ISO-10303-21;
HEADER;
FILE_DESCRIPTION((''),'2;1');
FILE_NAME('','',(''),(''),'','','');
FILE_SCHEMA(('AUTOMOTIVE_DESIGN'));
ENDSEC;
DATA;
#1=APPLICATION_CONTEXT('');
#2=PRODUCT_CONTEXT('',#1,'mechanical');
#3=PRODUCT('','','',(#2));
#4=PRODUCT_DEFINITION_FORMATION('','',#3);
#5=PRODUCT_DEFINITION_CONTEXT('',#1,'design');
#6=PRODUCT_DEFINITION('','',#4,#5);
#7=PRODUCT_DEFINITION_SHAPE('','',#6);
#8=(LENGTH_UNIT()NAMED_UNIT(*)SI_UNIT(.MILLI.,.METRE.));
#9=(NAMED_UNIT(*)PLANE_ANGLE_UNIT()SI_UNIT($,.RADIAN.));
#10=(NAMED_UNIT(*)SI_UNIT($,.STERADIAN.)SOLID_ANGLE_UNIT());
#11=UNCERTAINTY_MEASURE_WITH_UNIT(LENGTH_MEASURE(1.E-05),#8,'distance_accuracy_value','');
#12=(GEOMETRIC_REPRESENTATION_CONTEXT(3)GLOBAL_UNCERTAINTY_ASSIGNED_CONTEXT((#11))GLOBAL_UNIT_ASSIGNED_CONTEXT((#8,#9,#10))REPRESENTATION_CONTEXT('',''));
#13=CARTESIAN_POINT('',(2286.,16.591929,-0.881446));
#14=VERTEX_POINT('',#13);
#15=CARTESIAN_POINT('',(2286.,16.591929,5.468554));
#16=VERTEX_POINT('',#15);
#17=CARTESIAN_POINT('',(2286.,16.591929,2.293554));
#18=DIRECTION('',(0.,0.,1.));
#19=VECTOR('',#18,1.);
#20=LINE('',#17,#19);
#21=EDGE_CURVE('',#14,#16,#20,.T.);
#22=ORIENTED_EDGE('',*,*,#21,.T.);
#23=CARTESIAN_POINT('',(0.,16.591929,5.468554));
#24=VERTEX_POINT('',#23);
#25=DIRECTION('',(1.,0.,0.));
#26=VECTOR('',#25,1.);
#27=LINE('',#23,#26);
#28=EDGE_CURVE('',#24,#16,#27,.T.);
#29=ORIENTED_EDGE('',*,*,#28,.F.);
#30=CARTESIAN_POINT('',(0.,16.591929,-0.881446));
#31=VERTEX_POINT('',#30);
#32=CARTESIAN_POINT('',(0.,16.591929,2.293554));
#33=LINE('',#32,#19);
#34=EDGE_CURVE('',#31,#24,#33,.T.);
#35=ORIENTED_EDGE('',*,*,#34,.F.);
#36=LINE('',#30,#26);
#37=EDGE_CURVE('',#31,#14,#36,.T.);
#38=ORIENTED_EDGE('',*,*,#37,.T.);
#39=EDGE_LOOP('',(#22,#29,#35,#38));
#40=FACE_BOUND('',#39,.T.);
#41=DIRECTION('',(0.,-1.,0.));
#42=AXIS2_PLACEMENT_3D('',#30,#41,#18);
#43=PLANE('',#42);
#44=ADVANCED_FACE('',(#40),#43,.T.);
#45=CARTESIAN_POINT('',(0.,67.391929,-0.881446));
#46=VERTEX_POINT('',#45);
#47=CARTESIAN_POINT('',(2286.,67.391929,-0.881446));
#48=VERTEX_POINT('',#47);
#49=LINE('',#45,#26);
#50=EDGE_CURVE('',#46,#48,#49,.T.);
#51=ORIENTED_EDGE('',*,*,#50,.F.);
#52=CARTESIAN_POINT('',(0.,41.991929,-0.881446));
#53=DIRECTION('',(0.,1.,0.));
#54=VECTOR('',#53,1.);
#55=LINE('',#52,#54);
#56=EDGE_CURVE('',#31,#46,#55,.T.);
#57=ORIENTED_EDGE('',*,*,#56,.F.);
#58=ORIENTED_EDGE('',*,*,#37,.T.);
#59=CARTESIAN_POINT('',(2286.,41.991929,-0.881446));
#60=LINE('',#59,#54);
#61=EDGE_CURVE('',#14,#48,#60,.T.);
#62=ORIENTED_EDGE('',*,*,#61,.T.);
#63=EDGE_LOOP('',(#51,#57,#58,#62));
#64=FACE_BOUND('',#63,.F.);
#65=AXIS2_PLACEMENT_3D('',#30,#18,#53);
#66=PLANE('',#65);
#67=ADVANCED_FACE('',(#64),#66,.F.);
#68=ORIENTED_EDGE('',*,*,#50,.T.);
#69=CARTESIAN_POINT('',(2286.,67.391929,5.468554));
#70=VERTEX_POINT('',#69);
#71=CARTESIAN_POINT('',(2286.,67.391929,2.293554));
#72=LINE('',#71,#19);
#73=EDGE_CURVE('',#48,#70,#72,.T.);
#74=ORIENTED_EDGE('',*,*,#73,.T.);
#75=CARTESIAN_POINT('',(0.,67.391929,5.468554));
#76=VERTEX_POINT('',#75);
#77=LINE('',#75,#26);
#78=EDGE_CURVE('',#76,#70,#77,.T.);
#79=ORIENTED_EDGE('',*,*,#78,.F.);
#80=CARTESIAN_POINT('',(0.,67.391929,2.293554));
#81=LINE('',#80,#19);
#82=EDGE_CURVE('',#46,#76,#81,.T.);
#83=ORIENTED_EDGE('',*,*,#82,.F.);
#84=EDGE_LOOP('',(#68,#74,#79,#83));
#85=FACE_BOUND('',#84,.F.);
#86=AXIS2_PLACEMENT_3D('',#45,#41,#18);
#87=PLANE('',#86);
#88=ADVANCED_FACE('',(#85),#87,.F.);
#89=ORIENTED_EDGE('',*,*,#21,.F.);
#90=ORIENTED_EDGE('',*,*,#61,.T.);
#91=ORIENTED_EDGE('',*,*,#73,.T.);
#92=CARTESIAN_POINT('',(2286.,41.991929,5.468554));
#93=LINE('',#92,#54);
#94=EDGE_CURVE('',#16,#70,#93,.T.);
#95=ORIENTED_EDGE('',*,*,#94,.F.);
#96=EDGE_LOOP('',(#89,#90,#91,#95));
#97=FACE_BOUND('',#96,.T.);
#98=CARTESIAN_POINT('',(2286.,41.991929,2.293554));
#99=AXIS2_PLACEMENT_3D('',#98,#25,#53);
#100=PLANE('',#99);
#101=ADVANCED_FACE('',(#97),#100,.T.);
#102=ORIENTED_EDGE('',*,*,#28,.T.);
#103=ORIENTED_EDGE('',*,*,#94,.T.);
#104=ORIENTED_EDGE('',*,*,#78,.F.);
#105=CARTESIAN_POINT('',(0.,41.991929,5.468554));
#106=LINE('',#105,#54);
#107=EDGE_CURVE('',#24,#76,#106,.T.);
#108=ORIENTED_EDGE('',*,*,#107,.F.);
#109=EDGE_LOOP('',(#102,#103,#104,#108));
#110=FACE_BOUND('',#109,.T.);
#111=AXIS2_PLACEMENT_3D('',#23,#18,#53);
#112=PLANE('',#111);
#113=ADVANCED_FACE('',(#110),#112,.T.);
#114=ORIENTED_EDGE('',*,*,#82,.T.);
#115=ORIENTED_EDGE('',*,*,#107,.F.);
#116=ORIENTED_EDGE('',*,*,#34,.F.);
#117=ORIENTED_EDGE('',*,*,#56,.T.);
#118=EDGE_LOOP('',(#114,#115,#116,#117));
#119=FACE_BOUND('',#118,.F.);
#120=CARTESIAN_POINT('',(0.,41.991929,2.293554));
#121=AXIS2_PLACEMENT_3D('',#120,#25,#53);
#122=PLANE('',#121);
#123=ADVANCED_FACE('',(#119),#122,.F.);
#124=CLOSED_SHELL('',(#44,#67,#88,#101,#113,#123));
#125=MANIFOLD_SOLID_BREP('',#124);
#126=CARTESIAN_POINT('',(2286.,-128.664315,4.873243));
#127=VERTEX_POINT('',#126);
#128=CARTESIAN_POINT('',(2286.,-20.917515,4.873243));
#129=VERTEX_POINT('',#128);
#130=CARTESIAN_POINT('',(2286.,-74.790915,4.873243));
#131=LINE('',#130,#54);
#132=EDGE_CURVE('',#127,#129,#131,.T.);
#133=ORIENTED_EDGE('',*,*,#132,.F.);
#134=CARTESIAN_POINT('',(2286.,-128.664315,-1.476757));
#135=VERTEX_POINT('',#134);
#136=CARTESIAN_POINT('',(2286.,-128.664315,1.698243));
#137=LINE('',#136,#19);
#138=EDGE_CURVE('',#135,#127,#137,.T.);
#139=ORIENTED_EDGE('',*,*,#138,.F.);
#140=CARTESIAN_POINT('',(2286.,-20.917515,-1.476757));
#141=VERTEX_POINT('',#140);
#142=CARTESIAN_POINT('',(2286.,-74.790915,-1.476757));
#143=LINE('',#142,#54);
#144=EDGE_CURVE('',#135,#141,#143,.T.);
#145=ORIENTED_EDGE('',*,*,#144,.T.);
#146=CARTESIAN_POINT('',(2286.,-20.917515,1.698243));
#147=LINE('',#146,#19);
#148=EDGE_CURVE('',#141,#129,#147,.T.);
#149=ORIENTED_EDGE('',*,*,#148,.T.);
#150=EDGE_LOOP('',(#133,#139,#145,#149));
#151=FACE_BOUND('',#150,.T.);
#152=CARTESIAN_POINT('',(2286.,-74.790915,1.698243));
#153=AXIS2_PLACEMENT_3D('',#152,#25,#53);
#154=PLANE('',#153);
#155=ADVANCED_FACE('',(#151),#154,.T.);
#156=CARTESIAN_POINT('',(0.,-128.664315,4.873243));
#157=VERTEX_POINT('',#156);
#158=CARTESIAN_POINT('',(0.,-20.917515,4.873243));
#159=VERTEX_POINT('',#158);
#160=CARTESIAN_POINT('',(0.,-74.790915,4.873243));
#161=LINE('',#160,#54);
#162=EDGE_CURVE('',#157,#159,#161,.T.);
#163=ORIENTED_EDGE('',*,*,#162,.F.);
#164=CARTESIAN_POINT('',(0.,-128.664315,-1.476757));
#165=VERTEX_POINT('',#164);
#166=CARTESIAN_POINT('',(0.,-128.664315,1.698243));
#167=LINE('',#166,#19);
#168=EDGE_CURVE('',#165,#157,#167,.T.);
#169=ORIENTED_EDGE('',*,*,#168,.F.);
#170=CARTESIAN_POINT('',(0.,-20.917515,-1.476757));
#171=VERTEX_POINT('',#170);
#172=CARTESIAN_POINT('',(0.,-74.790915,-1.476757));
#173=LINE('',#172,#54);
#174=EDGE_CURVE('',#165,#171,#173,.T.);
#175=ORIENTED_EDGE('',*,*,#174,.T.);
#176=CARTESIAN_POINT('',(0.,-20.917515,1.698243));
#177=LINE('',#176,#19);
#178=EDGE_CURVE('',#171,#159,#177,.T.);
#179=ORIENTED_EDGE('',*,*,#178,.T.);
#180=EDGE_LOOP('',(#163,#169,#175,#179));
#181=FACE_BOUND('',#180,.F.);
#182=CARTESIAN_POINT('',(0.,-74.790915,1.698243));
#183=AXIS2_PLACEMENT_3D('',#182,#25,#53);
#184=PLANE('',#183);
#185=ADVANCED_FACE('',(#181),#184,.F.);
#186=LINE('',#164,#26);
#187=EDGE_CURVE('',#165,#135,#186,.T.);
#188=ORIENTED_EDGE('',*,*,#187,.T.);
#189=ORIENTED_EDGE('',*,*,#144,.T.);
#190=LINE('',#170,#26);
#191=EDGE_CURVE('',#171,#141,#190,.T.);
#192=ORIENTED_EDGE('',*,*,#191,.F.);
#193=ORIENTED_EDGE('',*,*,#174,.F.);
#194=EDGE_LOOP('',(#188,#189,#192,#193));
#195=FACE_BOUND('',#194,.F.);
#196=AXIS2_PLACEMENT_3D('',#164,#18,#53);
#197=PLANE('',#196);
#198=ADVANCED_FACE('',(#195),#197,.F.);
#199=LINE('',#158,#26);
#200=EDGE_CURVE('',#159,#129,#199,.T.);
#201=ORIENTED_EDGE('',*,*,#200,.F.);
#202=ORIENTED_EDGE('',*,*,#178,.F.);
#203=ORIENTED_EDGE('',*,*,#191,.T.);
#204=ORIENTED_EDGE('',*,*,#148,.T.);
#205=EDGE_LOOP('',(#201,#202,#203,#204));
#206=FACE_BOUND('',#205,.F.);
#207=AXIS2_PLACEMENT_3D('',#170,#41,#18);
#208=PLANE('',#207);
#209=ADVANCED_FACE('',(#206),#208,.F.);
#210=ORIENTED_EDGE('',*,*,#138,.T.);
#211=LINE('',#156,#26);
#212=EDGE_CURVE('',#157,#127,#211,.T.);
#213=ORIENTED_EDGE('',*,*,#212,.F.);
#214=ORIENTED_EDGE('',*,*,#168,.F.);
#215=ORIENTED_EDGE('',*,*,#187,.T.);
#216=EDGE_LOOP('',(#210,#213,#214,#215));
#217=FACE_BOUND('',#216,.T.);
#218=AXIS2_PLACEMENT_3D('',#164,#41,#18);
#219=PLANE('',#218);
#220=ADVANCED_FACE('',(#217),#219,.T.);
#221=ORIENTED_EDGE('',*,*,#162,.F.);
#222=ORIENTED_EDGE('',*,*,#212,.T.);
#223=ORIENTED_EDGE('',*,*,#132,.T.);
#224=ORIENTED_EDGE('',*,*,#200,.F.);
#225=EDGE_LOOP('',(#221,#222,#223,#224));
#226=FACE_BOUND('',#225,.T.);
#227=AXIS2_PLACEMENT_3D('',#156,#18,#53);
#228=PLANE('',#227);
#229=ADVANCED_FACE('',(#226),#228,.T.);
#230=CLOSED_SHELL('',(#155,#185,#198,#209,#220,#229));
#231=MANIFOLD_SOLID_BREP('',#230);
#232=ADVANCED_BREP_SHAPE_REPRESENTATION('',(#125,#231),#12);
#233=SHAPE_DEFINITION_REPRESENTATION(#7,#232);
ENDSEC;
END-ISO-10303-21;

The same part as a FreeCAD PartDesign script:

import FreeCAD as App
import Part
import Sketcher
Q = App.Units.Quantity

doc = App.newDocument("Part")
params = doc.addObject("Spreadsheet::Sheet", "Params")
for row, (alias, value) in enumerate([
    ("sketch1_height", "0.25 in"),
    ("sketch1_width", "4.242 in"),
    ("pad1_length", "90 in"),
    ("sketch2_width", "2 in"),
    ("sketch2_height", "0.25 in"),
    ("pad2_length", "90 in"),
], start=1):
    params.set(f"A{row}", alias)
    params.set(f"B{row}", "=" + value)
    params.setAlias(f"B{row}", alias)

body = doc.addObject("PartDesign::Body", "Body")

# Sketch on YZ plane
sketch1 = doc.addObject("Sketcher::SketchObject", "Sketch")
body.addObject(sketch1)
sketch1.AttachmentSupport = (doc.YZ_Plane, [""])
sketch1.MapMode = "FlatFace"
sketch1.addGeometry(Part.LineSegment(App.Vector(-129, 5, 0), App.Vector(-129, -1, 0)), False)
sketch1.addGeometry(Part.LineSegment(App.Vector(-129, -1, 0), App.Vector(-21, -1, 0)), False)
sketch1.addGeometry(Part.LineSegment(App.Vector(-21, -1, 0), App.Vector(-21, 5, 0)), False)
sketch1.addGeometry(Part.LineSegment(App.Vector(-21, 5, 0), App.Vector(-129, 5, 0)), False)
sketch1.addConstraint(Sketcher.Constraint("Coincident", 0, 2, 1, 1))
sketch1.addConstraint(Sketcher.Constraint("Coincident", 1, 2, 2, 1))
sketch1.addConstraint(Sketcher.Constraint("Coincident", 2, 2, 3, 1))
sketch1.addConstraint(Sketcher.Constraint("Coincident", 3, 2, 0, 1))
sketch1.addConstraint(Sketcher.Constraint("Vertical", 0))
sketch1.addConstraint(Sketcher.Constraint("Horizontal", 1))
sketch1.addConstraint(Sketcher.Constraint("Vertical", 2))
sketch1.addConstraint(Sketcher.Constraint("Horizontal", 3))
sketch1.addConstraint(Sketcher.Constraint("DistanceY", 0, 2, 0, 1, Q("0.25 in")))
sketch1.addConstraint(Sketcher.Constraint("DistanceX", 1, 1, 1, 2, Q("4.242 in")))
sketch1.addConstraint(Sketcher.Constraint("DistanceX", 0, 2, -1, 1, 128.664315))
sketch1.addConstraint(Sketcher.Constraint("DistanceY", 0, 2, -1, 1, 1.476757))
sketch1.setExpression("Constraints[8]", "Params.sketch1_height")
sketch1.setExpression("Constraints[9]", "Params.sketch1_width")
pad1 = doc.addObject("PartDesign::Pad", "Pad")
body.addObject(pad1)
pad1.Profile = sketch1
pad1.setExpression("Length", "Params.pad1_length")
body2 = doc.addObject("PartDesign::Body", "Body001")

# Sketch on YZ plane
sketch2 = doc.addObject("Sketcher::SketchObject", "Sketch001")
body2.addObject(sketch2)
sketch2.AttachmentSupport = (doc.getObject("YZ_Plane001"), [""])
sketch2.MapMode = "FlatFace"
sketch2.addGeometry(Part.LineSegment(App.Vector(17, 5, 0), App.Vector(17, -1, 0)), False)
sketch2.addGeometry(Part.LineSegment(App.Vector(17, -1, 0), App.Vector(67, -1, 0)), False)
sketch2.addGeometry(Part.LineSegment(App.Vector(67, -1, 0), App.Vector(67, 5, 0)), False)
sketch2.addGeometry(Part.LineSegment(App.Vector(67, 5, 0), App.Vector(17, 5, 0)), False)
sketch2.addConstraint(Sketcher.Constraint("Coincident", 0, 2, 1, 1))
sketch2.addConstraint(Sketcher.Constraint("Coincident", 1, 2, 2, 1))
sketch2.addConstraint(Sketcher.Constraint("Coincident", 2, 2, 3, 1))
sketch2.addConstraint(Sketcher.Constraint("Coincident", 3, 2, 0, 1))
sketch2.addConstraint(Sketcher.Constraint("Vertical", 0))
sketch2.addConstraint(Sketcher.Constraint("Horizontal", 1))
sketch2.addConstraint(Sketcher.Constraint("Vertical", 2))
sketch2.addConstraint(Sketcher.Constraint("Horizontal", 3))
sketch2.addConstraint(Sketcher.Constraint("DistanceX", 1, 1, 1, 2, Q("2 in")))
sketch2.addConstraint(Sketcher.Constraint("DistanceY", 0, 2, 0, 1, Q("0.25 in")))
sketch2.addConstraint(Sketcher.Constraint("DistanceX", -1, 1, 0, 2, 16.591929))
sketch2.addConstraint(Sketcher.Constraint("DistanceY", 0, 2, -1, 1, 0.881446))
sketch2.setExpression("Constraints[8]", "Params.sketch2_width")
sketch2.setExpression("Constraints[9]", "Params.sketch2_height")
pad2 = doc.addObject("PartDesign::Pad", "Pad001")
body2.addObject(pad2)
pad2.Profile = sketch2
pad2.setExpression("Length", "Params.pad2_length")

doc.recompute()
